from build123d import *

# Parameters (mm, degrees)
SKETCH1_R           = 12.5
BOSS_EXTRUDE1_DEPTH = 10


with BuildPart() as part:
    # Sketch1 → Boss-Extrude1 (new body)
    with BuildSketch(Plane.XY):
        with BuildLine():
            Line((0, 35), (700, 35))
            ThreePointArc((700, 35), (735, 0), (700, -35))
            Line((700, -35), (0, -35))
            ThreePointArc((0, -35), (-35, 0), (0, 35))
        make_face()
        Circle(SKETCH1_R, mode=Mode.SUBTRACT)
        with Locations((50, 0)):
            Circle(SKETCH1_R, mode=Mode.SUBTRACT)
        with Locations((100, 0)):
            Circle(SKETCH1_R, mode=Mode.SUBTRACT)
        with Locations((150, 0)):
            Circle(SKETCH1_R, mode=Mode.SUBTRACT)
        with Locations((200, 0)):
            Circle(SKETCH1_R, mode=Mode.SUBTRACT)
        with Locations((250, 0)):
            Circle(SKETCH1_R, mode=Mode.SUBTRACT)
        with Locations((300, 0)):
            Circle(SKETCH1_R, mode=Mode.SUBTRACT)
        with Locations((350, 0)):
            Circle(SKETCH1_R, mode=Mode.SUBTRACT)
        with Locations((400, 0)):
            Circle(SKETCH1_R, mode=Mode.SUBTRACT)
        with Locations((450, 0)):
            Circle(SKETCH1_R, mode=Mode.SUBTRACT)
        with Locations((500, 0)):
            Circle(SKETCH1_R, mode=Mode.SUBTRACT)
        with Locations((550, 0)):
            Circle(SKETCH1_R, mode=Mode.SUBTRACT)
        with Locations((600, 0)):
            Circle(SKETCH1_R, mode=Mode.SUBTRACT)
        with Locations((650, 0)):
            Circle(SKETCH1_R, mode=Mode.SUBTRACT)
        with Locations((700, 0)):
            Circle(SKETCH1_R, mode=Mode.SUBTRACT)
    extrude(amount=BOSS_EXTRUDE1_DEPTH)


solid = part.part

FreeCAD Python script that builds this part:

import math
import FreeCAD as App
import Part
import Sketcher

V = App.Vector

doc = App.newDocument("Part")
body = doc.addObject("PartDesign::Body", "Body")

# Sketch on XY plane
sketch1 = body.newObject("Sketcher::SketchObject", "Sketch")
sketch1.AttachmentSupport = (doc.getObject("XY_Plane"), [""])
sketch1.MapMode = "FlatFace"
sketch1.addGeometry([
    Part.LineSegment(V(700, 35, 0), V(0, 35, 0)),  # 0
    Part.ArcOfCircle(Part.Circle(V(0, 0, 0), V(0, 0, 1), 35), math.radians(90), math.radians(270)),  # 1
    Part.LineSegment(V(0, -35, 0), V(700, -35, 0)),  # 2
    Part.ArcOfCircle(Part.Circle(V(700, 0, 0), V(0, 0, 1), 35), math.radians(-90), math.radians(90)),  # 3
    Part.Circle(V(700, 0, 0), V(0, 0, 1), 12),  # 4
    Part.Circle(V(650, 0, 0), V(0, 0, 1), 12),  # 5
    Part.Circle(V(600, 0, 0), V(0, 0, 1), 12),  # 6
    Part.Circle(V(550, 0, 0), V(0, 0, 1), 12),  # 7
    Part.Circle(V(500, 0, 0), V(0, 0, 1), 12),  # 8
    Part.Circle(V(450, 0, 0), V(0, 0, 1), 12),  # 9
    Part.Circle(V(400, 0, 0), V(0, 0, 1), 12),  # 10
    Part.Circle(V(350, 0, 0), V(0, 0, 1), 12),  # 11
    Part.Circle(V(300, 0, 0), V(0, 0, 1), 12),  # 12
    Part.Circle(V(250, 0, 0), V(0, 0, 1), 12),  # 13
    Part.Circle(V(200, 0, 0), V(0, 0, 1), 12),  # 14
    Part.Circle(V(150, 0, 0), V(0, 0, 1), 12),  # 15
    Part.Circle(V(100, 0, 0), V(0, 0, 1), 12),  # 16
    Part.Circle(V(50, 0, 0), V(0, 0, 1), 12),  # 17
    Part.Circle(V(0, 0, 0), V(0, 0, 1), 12),  # 18
], False)
sketch1.addConstraint([
    Sketcher.Constraint("Tangent", 0, 2, 1, 1),
    Sketcher.Constraint("Tangent", 1, 2, 2, 1),
    Sketcher.Constraint("Tangent", 2, 2, 3, 1),
    Sketcher.Constraint("Tangent", 3, 2, 0, 1),
    Sketcher.Constraint("Horizontal", 0),
    Sketcher.Constraint("Horizontal", 2),
    Sketcher.Constraint("Coincident", 1, 3, -1, 1),
    Sketcher.Constraint("Coincident", 18, 3, -1, 1),
    Sketcher.Constraint("Coincident", 4, 3, 3, 3),
    Sketcher.Constraint("Equal", 4, 5),
    Sketcher.Constraint("Equal", 5, 6),
    Sketcher.Constraint("Equal", 6, 7),
    Sketcher.Constraint("Equal", 7, 8),
    Sketcher.Constraint("Equal", 8, 9),
    Sketcher.Constraint("Equal", 9, 10),
    Sketcher.Constraint("Equal", 10, 11),
    Sketcher.Constraint("Equal", 11, 12),
    Sketcher.Constraint("Equal", 12, 13),
    Sketcher.Constraint("Equal", 13, 14),
    Sketcher.Constraint("Equal", 14, 15),
    Sketcher.Constraint("Equal", 15, 16),
    Sketcher.Constraint("Equal", 16, 17),
    Sketcher.Constraint("Equal", 17, 18),
    Sketcher.Constraint("PointOnObject", 5, 3, -1),
    Sketcher.Constraint("PointOnObject", 6, 3, -1),
    Sketcher.Constraint("PointOnObject", 7, 3, -1),
    Sketcher.Constraint("PointOnObject", 8, 3, -1),
    Sketcher.Constraint("PointOnObject", 9, 3, -1),
    Sketcher.Constraint("PointOnObject", 10, 3, -1),
    Sketcher.Constraint("PointOnObject", 11, 3, -1),
    Sketcher.Constraint("PointOnObject", 12, 3, -1),
    Sketcher.Constraint("PointOnObject", 13, 3, -1),
    Sketcher.Constraint("PointOnObject", 14, 3, -1),
    Sketcher.Constraint("PointOnObject", 15, 3, -1),
    Sketcher.Constraint("PointOnObject", 16, 3, -1),
    Sketcher.Constraint("PointOnObject", 17, 3, -1),
    Sketcher.Constraint("Diameter", 4, 25.0),
    Sketcher.Constraint("Radius", 1, 35.0),
    Sketcher.Constraint("DistanceX", 0, 2, 0, 1, 700.0),
    Sketcher.Constraint("DistanceX", -1, 1, 5, 3, 650.0),
    Sketcher.Constraint("DistanceX", -1, 1, 6, 3, 600.0),
    Sketcher.Constraint("DistanceX", -1, 1, 7, 3, 550.0),
    Sketcher.Constraint("DistanceX", -1, 1, 8, 3, 500.0),
    Sketcher.Constraint("DistanceX", -1, 1, 9, 3, 450.0),
    Sketcher.Constraint("DistanceX", -1, 1, 10, 3, 400.0),
    Sketcher.Constraint("DistanceX", -1, 1, 11, 3, 350.0),
    Sketcher.Constraint("DistanceX", -1, 1, 12, 3, 300.0),
    Sketcher.Constraint("DistanceX", -1, 1, 13, 3, 250.0),
    Sketcher.Constraint("DistanceX", -1, 1, 14, 3, 200.0),
    Sketcher.Constraint("DistanceX", -1, 1, 15, 3, 150.0),
    Sketcher.Constraint("DistanceX", -1, 1, 16, 3, 100.0),
    Sketcher.Constraint("DistanceX", -1, 1, 17, 3, 50.0),
])
pad1 = body.newObject("PartDesign::Pad", "Pad")
pad1.Profile = sketch1
pad1.Length = 10

doc.recompute()
